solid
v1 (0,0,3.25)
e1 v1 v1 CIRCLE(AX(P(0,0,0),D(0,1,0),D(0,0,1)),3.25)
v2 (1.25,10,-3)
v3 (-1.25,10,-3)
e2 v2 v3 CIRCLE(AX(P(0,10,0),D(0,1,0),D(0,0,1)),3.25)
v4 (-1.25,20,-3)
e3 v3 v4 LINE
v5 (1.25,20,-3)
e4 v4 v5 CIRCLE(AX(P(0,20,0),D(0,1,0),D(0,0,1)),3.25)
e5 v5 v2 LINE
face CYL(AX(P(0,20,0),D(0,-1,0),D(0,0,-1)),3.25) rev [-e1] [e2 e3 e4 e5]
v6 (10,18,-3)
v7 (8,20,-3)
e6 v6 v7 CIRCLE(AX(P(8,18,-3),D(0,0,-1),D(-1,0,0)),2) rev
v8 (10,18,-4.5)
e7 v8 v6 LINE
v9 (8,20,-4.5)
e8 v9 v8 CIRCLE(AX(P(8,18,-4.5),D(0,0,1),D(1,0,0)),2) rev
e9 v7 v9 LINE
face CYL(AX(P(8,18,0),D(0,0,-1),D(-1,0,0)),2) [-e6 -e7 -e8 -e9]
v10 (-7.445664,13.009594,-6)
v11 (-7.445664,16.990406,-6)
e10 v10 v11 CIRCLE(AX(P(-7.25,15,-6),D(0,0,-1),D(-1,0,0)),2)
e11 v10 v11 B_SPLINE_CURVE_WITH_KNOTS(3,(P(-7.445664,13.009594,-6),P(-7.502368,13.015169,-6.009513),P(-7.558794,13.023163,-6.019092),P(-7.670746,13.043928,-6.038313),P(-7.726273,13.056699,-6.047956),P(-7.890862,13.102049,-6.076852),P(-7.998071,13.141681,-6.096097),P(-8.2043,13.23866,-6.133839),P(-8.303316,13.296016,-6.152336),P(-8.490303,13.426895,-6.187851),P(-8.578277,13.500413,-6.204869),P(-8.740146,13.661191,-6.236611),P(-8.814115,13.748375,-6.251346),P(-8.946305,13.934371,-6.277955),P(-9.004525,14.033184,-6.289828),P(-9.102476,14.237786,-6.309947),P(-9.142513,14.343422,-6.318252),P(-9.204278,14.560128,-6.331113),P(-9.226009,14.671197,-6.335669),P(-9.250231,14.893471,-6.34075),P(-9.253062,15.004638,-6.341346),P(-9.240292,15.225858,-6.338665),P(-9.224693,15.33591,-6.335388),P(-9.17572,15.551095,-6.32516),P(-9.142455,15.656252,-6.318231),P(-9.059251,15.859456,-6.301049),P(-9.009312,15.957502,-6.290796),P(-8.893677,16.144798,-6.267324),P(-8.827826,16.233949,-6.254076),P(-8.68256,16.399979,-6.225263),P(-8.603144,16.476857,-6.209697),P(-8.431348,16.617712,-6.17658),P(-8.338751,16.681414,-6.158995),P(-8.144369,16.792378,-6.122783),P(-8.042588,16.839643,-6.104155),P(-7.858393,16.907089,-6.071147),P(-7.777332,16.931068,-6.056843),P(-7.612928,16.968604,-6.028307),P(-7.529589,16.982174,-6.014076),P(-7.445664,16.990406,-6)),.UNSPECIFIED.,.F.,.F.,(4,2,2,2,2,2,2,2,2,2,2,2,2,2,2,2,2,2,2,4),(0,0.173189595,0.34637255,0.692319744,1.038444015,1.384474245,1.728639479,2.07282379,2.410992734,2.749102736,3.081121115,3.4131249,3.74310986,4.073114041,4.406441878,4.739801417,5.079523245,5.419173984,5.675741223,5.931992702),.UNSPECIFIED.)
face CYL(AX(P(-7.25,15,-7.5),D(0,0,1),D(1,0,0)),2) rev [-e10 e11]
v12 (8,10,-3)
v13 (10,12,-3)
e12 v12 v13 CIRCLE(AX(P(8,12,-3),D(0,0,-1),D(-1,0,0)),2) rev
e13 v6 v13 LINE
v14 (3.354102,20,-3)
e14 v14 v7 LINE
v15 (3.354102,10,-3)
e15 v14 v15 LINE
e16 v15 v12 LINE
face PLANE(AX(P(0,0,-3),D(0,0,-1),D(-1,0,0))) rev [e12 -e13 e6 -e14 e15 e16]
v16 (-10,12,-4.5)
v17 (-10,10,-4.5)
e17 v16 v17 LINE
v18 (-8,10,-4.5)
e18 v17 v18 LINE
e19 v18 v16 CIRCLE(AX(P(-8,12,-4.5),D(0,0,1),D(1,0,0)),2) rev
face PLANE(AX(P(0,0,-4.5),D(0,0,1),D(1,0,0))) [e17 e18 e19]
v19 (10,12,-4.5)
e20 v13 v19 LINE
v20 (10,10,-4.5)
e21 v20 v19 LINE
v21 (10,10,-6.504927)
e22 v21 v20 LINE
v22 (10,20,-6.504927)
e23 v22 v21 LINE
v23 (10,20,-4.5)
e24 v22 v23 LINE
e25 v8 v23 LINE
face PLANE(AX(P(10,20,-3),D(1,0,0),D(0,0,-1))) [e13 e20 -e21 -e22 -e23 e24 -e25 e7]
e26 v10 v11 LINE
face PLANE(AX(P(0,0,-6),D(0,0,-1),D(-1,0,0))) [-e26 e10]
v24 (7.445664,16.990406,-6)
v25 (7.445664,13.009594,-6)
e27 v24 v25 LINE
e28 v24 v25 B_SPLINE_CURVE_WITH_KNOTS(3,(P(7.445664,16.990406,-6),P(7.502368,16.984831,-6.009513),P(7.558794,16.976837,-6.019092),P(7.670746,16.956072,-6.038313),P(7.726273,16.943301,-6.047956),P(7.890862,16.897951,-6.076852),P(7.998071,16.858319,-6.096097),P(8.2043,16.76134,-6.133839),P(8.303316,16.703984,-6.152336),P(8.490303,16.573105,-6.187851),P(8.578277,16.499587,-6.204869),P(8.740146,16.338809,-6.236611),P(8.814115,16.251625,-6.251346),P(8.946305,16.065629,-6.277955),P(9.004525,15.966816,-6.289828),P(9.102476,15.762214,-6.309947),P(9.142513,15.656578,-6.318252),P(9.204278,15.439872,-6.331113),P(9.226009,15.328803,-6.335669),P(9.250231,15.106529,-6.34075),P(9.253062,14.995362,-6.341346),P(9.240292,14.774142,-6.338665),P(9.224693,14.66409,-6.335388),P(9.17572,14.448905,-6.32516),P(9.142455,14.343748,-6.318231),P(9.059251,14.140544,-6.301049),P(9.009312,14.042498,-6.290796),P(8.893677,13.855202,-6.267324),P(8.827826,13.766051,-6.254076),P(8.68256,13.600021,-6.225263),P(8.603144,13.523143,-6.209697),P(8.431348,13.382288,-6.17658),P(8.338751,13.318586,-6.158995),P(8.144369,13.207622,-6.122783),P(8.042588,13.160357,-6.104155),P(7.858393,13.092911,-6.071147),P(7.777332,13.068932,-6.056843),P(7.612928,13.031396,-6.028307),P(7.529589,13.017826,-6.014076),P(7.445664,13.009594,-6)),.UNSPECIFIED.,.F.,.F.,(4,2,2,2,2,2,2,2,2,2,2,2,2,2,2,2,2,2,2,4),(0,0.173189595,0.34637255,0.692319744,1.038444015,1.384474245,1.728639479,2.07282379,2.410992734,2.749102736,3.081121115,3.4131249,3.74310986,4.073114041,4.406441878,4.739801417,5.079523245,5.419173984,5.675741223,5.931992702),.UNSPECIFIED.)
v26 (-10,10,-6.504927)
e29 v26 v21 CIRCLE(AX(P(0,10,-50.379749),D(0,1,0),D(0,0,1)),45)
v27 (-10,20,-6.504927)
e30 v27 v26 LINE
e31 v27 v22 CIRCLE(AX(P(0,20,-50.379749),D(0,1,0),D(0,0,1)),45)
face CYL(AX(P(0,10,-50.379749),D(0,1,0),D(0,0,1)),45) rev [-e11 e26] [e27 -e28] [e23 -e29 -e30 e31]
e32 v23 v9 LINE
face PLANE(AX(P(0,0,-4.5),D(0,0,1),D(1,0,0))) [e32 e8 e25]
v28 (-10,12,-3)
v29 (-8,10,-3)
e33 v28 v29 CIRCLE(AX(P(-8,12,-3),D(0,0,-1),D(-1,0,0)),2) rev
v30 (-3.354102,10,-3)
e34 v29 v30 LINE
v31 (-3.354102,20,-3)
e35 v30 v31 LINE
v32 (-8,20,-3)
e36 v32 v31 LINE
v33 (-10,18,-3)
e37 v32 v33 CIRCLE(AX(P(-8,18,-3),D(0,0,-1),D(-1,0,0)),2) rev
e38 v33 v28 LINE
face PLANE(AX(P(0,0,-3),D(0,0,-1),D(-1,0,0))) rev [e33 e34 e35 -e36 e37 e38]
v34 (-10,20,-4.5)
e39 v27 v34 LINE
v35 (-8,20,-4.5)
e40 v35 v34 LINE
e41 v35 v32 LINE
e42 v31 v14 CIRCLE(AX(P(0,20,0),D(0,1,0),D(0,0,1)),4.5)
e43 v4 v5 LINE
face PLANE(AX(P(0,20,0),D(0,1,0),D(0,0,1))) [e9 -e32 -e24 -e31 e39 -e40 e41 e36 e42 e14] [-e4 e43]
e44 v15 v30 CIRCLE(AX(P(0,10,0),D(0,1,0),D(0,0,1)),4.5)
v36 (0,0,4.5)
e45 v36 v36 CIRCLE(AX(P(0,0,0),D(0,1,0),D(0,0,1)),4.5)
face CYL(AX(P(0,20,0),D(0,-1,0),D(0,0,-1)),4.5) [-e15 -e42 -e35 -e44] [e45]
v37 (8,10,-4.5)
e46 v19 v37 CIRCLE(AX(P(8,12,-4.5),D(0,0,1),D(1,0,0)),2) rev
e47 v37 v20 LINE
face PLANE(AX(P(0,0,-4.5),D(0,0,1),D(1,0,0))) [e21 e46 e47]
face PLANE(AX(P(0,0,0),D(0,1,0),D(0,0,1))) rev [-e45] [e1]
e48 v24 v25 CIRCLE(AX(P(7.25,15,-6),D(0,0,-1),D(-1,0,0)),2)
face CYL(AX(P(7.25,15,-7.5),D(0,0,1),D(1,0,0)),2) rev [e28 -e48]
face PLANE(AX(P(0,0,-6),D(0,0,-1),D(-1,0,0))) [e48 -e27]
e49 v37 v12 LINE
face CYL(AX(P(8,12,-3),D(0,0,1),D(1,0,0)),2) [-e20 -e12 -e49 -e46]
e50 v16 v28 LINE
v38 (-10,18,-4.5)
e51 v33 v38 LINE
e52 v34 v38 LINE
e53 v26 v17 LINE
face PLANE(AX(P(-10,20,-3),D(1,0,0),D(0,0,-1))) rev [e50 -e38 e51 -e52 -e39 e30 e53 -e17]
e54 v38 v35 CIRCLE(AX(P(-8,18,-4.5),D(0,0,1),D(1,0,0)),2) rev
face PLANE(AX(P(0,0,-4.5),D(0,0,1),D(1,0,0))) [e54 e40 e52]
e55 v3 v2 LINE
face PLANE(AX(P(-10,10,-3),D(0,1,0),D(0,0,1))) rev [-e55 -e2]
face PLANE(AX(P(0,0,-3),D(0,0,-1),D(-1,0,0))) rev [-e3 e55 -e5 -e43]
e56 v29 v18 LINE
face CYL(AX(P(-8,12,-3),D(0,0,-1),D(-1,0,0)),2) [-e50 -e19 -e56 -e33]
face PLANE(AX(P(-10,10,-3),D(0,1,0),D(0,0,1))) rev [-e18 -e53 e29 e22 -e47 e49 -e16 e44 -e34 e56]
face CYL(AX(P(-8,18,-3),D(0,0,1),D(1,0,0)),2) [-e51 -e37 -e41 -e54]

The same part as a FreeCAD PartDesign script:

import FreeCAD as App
import Part
import Sketcher
from FreeCAD import Vector


def edges_at(feature, points):
    """Names of the edges that pass closest to the given points."""
    edges = feature.Shape.Edges
    near = lambda p: min(range(len(edges)), key=lambda i: edges[i].distToShape(Part.Vertex(*p))[0])
    return sorted({f"Edge{near(p) + 1}" for p in points})


def add_polygon(sketch, points):
    """Adds a closed chain of lines whose ends are joined by coincident constraints."""
    first, n = sketch.GeometryCount, len(points)
    for a, b in zip(points, points[1:] + points[:1]):
        sketch.addGeometry(Part.LineSegment(App.Vector(*a, 0), App.Vector(*b, 0)), False)
    for i in range(n):
        sketch.addConstraint(Sketcher.Constraint("Coincident", first + i, 2, first + (i + 1) % n, 1))

doc = App.newDocument("Part")
params = doc.addObject("Spreadsheet::Sheet", "Params")
for row, (alias, value) in enumerate([
    ("sketch1_diameter", "9 mm"),
    ("sketch1_diameter2", "6.5 mm"),
    ("pad1_length", "20 mm"),
    ("sketch2_width", "20 mm"),
    ("sketch2_height", "10 mm"),
    ("pad2_length", "3 mm"),
    ("fillet_radius", "2 mm"),
    ("sketch3_diameter", "4 mm"),
    ("sketch3_width", "20 mm"),
    ("sketch3_height", "10 mm"),
    ("pad3_length", "3 mm"),
    ("sketch4_diameter", "90 mm"),
    ("pocket1_length", "10 mm"),
], start=1):
    params.set(f"A{row}", alias)
    params.set(f"B{row}", "=" + value)
    params.setAlias(f"B{row}", alias)

body = doc.addObject("PartDesign::Body", "Body")

sketch1 = body.newObject("Sketcher::SketchObject", "Sketch")
sketch1.AttachmentSupport = (doc.getObject("XZ_Plane"), [""])
sketch1.MapMode = "FlatFace"
sketch1.addGeometry([
    Part.Circle(Vector(0, 0, 0), Vector(0, 0, 1), 4.5),
    Part.Circle(Vector(0, 0, 0), Vector(0, 0, 1), 3.2),
], False)
sketch1.addConstraint([
    Sketcher.Constraint("Coincident", 0, 3, -1, 1),
    Sketcher.Constraint("Coincident", 1, 3, -1, 1),
    Sketcher.Constraint("Diameter", 0, 9.0),
    Sketcher.Constraint("Diameter", 1, 6.5),
])
sketch1.setExpression("Constraints[2]", "Params.sketch1_diameter")
sketch1.setExpression("Constraints[3]", "Params.sketch1_diameter2")
pad1 = body.newObject("PartDesign::Pad", "Pad")
pad1.Profile = sketch1
pad1.setExpression("Length", "Params.pad1_length")
pad1.Reversed = True

sketch2 = body.newObject("Sketcher::SketchObject", "Sketch001")
sketch2.AttachmentSupport = (doc.getObject("XY_Plane"), [""])
sketch2.MapMode = "FlatFace"
sketch2.AttachmentOffset = App.Placement(Vector(0, 0, -4.5), App.Rotation())
add_polygon(sketch2, [(-10, 20), (-10, 10), (10, 10), (10, 20)])
sketch2.addConstraint([
    Sketcher.Constraint("Vertical", 0),
    Sketcher.Constraint("Horizontal", 1),
    Sketcher.Constraint("Vertical", 2),
    Sketcher.Constraint("Horizontal", 3),
    Sketcher.Constraint("DistanceX", 1, 1, 1, 2, 20.0),
    Sketcher.Constraint("DistanceY", 0, 2, 0, 1, 10.0),
    Sketcher.Constraint("DistanceX", 0, 2, -1, 1, 10.0),
    Sketcher.Constraint("DistanceY", -1, 1, 0, 2, 10.0),
])
sketch2.setExpression("Constraints[8]", "Params.sketch2_width")
sketch2.setExpression("Constraints[9]", "Params.sketch2_height")
pad2 = body.newObject("PartDesign::Pad", "Pad001")
pad2.Profile = sketch2
pad2.setExpression("Length", "Params.pad2_length")
pad2.Midplane = True
doc.recompute()

fillet = body.newObject("PartDesign::Fillet", "Fillet")
fillet.Base = (pad2, edges_at(pad2, [
    (-10, 10, -4.5),
    (10, 10, -4.5),
    (10, 20, -4.5),
    (-10, 20, -4.5),
]))
fillet.setExpression("Radius", "Params.fillet_radius")

sketch3 = body.newObject("Sketcher::SketchObject", "Sketch002")
sketch3.AttachmentSupport = (doc.getObject("XY_Plane"), [""])
sketch3.MapMode = "FlatFace"
sketch3.AttachmentOffset = App.Placement(Vector(0, 0, -4.5), App.Rotation())
add_polygon(sketch3, [(-10, 20), (-10, 10), (10, 10), (10, 20)])
sketch3.addGeometry(Part.Circle(Vector(-7.2, 15, 0), Vector(0, 0, 1), 2), False)
sketch3.addGeometry(Part.Circle(Vector(7.2, 15, 0), Vector(0, 0, 1), 2), False)
sketch3.addConstraint([
    Sketcher.Constraint("Vertical", 0),
    Sketcher.Constraint("Horizontal", 1),
    Sketcher.Constraint("Vertical", 2),
    Sketcher.Constraint("Horizontal", 3),
    Sketcher.Constraint("Equal", 4, 5),
    Sketcher.Constraint("Symmetric", 4, 3, 5, 3, -2),
    Sketcher.Constraint("Diameter", 4, 4.0),
    Sketcher.Constraint("DistanceX", 1, 1, 1, 2, 20.0),
    Sketcher.Constraint("DistanceY", 0, 2, 0, 1, 10.0),
    Sketcher.Constraint("DistanceY", -1, 1, 4, 3, 15.0),
    Sketcher.Constraint("DistanceX", 0, 2, -1, 1, 10.0),
    Sketcher.Constraint("DistanceY", -1, 1, 0, 2, 10.0),
    Sketcher.Constraint("DistanceX", 4, 3, 5, 3, 14.5),
])
sketch3.setExpression("Constraints[10]", "Params.sketch3_diameter")
sketch3.setExpression("Constraints[11]", "Params.sketch3_width")
sketch3.setExpression("Constraints[12]", "Params.sketch3_height")
pad3 = body.newObject("PartDesign::Pad", "Pad002")
pad3.Profile = sketch3
pad3.setExpression("Length", "Params.pad3_length")
pad3.Reversed = True

sketch4 = body.newObject("Sketcher::SketchObject", "Sketch003")
sketch4.AttachmentSupport = (doc.getObject("XZ_Plane"), [""])
sketch4.MapMode = "FlatFace"
sketch4.AttachmentOffset = App.Placement(Vector(0, 0, -20), App.Rotation())
sketch4.addGeometry(Part.Circle(Vector(0, -50, 0), Vector(0, 0, 1), 45), False)
sketch4.addConstraint([
    Sketcher.Constraint("PointOnObject", 0, 3, -2),
    Sketcher.Constraint("Diameter", 0, 90.0),
    Sketcher.Constraint("DistanceY", 0, 3, -1, 1, 50.379749),
])
sketch4.setExpression("Constraints[1]", "Params.sketch4_diameter")
pocket1 = body.newObject("PartDesign::Pocket", "Pocket")
pocket1.Profile = sketch4
pocket1.setExpression("Length", "Params.pocket1_length")
pocket1.Reversed = True

doc.recompute()
